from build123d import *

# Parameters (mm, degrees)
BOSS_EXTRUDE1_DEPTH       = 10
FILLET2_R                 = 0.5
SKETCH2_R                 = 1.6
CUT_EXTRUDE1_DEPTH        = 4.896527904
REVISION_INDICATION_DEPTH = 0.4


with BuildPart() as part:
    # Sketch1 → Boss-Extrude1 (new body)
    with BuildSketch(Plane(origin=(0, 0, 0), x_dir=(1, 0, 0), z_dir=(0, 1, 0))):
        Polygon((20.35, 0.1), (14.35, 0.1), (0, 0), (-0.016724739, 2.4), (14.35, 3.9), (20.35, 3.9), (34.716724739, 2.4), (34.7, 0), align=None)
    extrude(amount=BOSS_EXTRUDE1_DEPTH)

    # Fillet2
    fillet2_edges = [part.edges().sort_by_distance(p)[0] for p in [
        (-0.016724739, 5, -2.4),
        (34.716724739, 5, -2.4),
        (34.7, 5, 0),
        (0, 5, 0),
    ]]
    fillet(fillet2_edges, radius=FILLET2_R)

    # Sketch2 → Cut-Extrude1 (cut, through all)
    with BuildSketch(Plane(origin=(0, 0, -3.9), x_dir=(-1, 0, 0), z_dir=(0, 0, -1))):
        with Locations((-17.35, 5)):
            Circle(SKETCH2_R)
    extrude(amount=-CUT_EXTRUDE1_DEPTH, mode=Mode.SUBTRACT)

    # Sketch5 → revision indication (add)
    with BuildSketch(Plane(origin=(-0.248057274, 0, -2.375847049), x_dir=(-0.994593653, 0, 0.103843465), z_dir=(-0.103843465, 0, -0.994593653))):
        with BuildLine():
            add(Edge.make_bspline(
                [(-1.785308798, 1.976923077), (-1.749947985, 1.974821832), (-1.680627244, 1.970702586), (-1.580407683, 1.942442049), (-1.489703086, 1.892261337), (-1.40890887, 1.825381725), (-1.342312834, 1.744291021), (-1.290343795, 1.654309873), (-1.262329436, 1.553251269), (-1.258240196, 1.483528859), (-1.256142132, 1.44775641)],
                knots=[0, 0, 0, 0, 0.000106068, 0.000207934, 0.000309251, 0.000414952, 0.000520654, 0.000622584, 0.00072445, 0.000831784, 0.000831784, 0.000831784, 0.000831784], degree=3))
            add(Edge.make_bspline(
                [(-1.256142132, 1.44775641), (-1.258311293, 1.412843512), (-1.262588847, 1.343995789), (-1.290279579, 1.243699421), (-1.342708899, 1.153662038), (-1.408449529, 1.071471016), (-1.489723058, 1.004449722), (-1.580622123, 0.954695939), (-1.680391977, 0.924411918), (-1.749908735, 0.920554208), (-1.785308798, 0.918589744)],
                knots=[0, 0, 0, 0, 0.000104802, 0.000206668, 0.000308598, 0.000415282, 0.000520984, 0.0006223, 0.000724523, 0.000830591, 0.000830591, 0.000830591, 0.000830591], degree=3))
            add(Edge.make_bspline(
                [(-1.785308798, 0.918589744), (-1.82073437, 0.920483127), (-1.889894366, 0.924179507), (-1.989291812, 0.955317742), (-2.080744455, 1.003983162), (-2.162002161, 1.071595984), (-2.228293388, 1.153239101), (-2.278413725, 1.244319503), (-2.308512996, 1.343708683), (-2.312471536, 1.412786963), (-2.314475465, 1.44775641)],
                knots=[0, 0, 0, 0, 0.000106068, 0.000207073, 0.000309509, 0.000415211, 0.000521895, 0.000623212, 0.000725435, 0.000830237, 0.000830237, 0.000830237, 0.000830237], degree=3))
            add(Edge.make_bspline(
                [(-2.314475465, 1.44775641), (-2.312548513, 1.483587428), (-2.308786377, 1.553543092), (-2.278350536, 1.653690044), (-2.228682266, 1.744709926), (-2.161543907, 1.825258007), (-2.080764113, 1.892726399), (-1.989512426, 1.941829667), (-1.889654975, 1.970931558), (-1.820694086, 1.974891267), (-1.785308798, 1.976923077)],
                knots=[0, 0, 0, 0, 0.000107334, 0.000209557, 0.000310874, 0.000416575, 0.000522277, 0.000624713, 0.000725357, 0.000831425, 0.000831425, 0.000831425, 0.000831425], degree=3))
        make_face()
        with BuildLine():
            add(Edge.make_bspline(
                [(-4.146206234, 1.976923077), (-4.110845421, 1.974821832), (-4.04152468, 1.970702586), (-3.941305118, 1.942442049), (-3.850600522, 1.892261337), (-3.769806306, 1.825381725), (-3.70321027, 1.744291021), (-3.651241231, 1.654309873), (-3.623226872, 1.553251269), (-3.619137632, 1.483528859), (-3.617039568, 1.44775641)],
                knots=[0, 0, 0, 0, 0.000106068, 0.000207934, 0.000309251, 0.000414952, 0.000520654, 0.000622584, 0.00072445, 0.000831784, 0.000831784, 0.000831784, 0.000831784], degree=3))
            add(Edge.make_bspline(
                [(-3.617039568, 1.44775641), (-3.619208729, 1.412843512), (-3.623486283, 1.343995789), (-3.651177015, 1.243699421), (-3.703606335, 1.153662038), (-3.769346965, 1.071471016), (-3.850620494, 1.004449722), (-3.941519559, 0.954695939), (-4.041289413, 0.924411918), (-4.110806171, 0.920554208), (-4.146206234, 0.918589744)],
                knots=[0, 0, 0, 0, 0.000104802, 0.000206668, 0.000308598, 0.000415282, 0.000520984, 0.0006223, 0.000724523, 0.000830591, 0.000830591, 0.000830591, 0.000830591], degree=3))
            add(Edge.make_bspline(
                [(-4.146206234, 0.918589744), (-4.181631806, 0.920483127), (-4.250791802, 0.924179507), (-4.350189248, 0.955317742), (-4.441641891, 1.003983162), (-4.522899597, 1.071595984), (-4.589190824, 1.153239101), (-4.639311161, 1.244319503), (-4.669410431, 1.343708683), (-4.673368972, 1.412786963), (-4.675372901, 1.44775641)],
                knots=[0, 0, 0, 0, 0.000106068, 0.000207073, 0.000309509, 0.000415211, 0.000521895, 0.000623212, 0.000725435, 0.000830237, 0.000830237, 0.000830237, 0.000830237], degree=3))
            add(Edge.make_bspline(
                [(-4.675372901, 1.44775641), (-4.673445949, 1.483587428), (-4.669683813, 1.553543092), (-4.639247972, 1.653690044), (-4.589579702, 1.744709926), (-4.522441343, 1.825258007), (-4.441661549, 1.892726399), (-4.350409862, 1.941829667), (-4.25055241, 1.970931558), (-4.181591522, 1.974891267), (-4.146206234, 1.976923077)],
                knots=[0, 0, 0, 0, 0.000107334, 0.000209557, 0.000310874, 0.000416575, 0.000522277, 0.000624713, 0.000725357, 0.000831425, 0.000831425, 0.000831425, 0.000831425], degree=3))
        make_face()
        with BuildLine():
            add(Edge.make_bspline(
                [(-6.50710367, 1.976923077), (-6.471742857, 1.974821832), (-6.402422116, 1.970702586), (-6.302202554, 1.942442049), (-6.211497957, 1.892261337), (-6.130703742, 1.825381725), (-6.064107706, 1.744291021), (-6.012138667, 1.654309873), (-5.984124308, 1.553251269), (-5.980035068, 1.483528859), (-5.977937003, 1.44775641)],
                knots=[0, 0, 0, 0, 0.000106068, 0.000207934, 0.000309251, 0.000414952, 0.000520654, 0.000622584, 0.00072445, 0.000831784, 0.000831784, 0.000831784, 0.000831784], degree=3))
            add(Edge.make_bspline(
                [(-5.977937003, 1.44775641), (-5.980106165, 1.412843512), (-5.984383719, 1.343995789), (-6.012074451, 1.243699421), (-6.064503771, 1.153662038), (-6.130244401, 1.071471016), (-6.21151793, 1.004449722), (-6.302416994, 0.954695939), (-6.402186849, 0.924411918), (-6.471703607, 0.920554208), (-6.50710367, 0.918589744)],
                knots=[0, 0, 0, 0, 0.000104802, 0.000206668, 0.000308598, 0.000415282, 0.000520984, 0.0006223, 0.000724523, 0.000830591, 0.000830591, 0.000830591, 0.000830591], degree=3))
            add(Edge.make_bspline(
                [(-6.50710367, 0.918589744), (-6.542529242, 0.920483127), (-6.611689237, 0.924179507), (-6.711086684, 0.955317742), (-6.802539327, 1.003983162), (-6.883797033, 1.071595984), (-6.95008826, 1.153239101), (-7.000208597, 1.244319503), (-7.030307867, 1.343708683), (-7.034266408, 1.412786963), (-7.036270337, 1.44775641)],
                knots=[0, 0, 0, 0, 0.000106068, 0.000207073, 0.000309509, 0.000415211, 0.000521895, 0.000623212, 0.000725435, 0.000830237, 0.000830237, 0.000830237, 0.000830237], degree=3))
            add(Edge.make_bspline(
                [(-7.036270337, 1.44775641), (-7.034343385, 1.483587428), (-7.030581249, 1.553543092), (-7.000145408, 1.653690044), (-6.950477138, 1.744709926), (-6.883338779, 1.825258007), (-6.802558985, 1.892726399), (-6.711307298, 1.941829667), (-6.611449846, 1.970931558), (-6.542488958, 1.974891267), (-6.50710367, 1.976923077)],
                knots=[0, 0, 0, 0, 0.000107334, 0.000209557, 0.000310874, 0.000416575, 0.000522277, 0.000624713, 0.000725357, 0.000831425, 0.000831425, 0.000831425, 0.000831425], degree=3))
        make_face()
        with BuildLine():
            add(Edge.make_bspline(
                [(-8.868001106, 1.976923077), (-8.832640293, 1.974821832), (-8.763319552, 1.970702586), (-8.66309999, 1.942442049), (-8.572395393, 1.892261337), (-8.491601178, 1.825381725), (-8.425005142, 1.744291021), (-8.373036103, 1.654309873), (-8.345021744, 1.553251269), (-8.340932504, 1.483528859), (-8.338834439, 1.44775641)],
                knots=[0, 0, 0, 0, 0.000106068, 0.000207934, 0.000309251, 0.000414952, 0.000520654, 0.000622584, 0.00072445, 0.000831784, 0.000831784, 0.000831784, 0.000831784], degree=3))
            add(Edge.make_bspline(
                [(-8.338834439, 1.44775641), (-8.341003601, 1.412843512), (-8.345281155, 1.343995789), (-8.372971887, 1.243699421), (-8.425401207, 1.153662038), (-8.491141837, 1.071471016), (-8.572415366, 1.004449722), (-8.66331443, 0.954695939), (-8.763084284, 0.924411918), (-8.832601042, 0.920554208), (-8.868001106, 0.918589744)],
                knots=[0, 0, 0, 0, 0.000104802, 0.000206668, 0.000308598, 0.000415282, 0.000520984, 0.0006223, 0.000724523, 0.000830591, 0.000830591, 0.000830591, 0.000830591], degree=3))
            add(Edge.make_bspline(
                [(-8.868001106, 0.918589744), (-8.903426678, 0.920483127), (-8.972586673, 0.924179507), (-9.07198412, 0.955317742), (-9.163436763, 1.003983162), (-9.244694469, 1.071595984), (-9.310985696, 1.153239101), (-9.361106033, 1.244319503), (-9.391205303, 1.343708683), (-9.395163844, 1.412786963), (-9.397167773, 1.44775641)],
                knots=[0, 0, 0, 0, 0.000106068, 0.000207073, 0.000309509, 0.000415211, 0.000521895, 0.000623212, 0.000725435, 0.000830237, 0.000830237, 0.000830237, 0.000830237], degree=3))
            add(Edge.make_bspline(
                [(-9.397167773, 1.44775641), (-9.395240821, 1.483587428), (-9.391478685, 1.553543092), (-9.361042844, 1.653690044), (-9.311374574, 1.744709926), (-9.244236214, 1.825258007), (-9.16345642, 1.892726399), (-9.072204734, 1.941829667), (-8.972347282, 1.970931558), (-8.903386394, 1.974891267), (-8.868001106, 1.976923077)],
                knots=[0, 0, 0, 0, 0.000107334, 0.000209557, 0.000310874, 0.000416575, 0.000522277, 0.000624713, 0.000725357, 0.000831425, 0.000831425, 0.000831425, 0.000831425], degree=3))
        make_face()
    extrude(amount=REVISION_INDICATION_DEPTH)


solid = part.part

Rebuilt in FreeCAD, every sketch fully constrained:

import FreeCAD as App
import Part
import Sketcher
from FreeCAD import Vector
Q = App.Units.Quantity


def edges_at(feature, points):
    """Names of the edges that pass closest to the given points."""
    edges = feature.Shape.Edges
    near = lambda p: min(range(len(edges)), key=lambda i: edges[i].distToShape(Part.Vertex(*p))[0])
    return sorted({f"Edge{near(p) + 1}" for p in points})


def add_polygon(sketch, points):
    """Adds a closed chain of lines whose ends are joined by coincident constraints."""
    first, n = sketch.GeometryCount, len(points)
    for a, b in zip(points, points[1:] + points[:1]):
        sketch.addGeometry(Part.LineSegment(App.Vector(*a, 0), App.Vector(*b, 0)), False)
    for i in range(n):
        sketch.addConstraint(Sketcher.Constraint("Coincident", first + i, 2, first + (i + 1) % n, 1))

doc = App.newDocument("Part")
body = doc.addObject("PartDesign::Body", "Body")

# Sketch on XZ plane
sketch1 = doc.addObject("Sketcher::SketchObject", "Sketch")
body.addObject(sketch1)
sketch1.AttachmentSupport = (doc.XZ_Plane, [""])
sketch1.MapMode = "FlatFace"
add_polygon(sketch1, [(14.3, -0.1), (20.4, -0.1), (34.7, 0), (34.7, -2.4), (20.4, -3.9), (14.3, -3.9), (0, -2.4), (0, 0)])  # lines 0-7
sketch1.addConstraint([
    Sketcher.Constraint("Horizontal", 0),
    Sketcher.Constraint("Horizontal", 4),
    Sketcher.Constraint("Coincident", 6, 2, -1, 1),
    Sketcher.Constraint("PointOnObject", 1, 2, -1),
    Sketcher.Constraint("Perpendicular", 1, 2),
    Sketcher.Constraint("Perpendicular", 6, 7),
    Sketcher.Constraint("Horizontal", 2, 2, 5, 2),
    Sketcher.Constraint("Vertical", 0, 2, 3, 2),
    Sketcher.Constraint("Vertical", 4, 2, 7, 2),
    Sketcher.Constraint("Equal", 3, 5),
    Sketcher.Constraint("DistanceX", 0, 1, 0, 2, Q("6 mm")),
    Sketcher.Constraint("DistanceY", 0, 2, -1, 1, Q("0.1 mm")),
    Sketcher.Constraint("DistanceX", -1, 1, 1, 2, Q("34.7 mm")),
    Sketcher.Constraint("DistanceY", 2, 2, -1, 1, Q("2.4 mm")),
    Sketcher.Constraint("DistanceY", 3, 2, -1, 1, Q("3.9 mm")),
])
pad1 = doc.addObject("PartDesign::Pad", "Pad")
body.addObject(pad1)
pad1.Profile = sketch1
pad1.Length = 10
pad1.Reversed = True
doc.recompute()

fillet = doc.addObject("PartDesign::Fillet", "Fillet")
body.addObject(fillet)
fillet.Base = (pad1, edges_at(pad1, [
    (-0.017, 5, -2.4),
    (34.717, 5, -2.4),
    (34.7, 5, 0),
    (0, 5, 0),
]))
fillet.Radius = 0.5

# Sketch on XY plane
sketch2 = doc.addObject("Sketcher::SketchObject", "Sketch001")
body.addObject(sketch2)
sketch2.AttachmentSupport = (doc.XY_Plane, [""])
sketch2.MapMode = "FlatFace"
sketch2.AttachmentOffset = App.Placement(Vector(0, 0, -3.9), App.Rotation())
sketch2.addGeometry(Part.Circle(Vector(17.4, 5, 0), Vector(0, 0, 1), 1.6), False)
sketch2.addConstraint([
    Sketcher.Constraint("Diameter", 0, Q("3.2 mm")),
    Sketcher.Constraint("DistanceY", -1, 1, 0, 3, Q("5 mm")),
    Sketcher.Constraint("DistanceX", -1, 1, 0, 3, Q("17.35 mm")),
])
pocket1 = doc.addObject("PartDesign::Pocket", "Pocket")
body.addObject(pocket1)
pocket1.Profile = sketch2
pocket1.Type = "ThroughAll"
pocket1.Reversed = True

# Sketch on an angled plane
sketch3 = doc.addObject("Sketcher::SketchObject", "Sketch002")
body.addObject(sketch3)
sketch3.Placement = App.Placement(Vector(-0.248057, 0, -2.375847), App.Rotation(Vector(-0.994593653, 0, 0.103843465), Vector(0, 1, 0), Vector(-0.103843465, 0, -0.994593653), "ZXY"))
sketch3.addGeometry([
    Part.BSplineCurve([Vector(-1.785309, 1.976923, 0), Vector(-1.749948, 1.974822, 0), Vector(-1.680627, 1.970703, 0), Vector(-1.580408, 1.942442, 0), Vector(-1.489703, 1.892261, 0), Vector(-1.408909, 1.825382, 0), Vector(-1.342313, 1.744291, 0), Vector(-1.290344, 1.65431, 0), Vector(-1.262329, 1.553251, 0), Vector(-1.25824, 1.483529, 0), Vector(-1.256142, 1.447756, 0)], [4, 1, 1, 1, 1, 1, 1, 1, 4], [0, 0.000106068, 0.000207934, 0.000309251, 0.000414952, 0.000520654, 0.000622584, 0.00072445, 0.000831784], False, 3, [1, 1, 1, 1, 1, 1, 1, 1, 1, 1, 1], False),  # 0
    Part.BSplineCurve([Vector(-2.314475, 1.447756, 0), Vector(-2.312549, 1.483587, 0), Vector(-2.308786, 1.553543, 0), Vector(-2.278351, 1.65369, 0), Vector(-2.228682, 1.74471, 0), Vector(-2.161544, 1.825258, 0), Vector(-2.080764, 1.892726, 0), Vector(-1.989512, 1.94183, 0), Vector(-1.889655, 1.970932, 0), Vector(-1.820694, 1.974891, 0), Vector(-1.785309, 1.976923, 0)], [4, 1, 1, 1, 1, 1, 1, 1, 4], [0, 0.000107334, 0.000209557, 0.000310874, 0.000416575, 0.000522277, 0.000624713, 0.000725357, 0.000831425], False, 3, [1, 1, 1, 1, 1, 1, 1, 1, 1, 1, 1], False),  # 1
    Part.BSplineCurve([Vector(-1.785309, 0.91859, 0), Vector(-1.820734, 0.920483, 0), Vector(-1.889894, 0.92418, 0), Vector(-1.989292, 0.955318, 0), Vector(-2.080744, 1.003983, 0), Vector(-2.162002, 1.071596, 0), Vector(-2.228293, 1.153239, 0), Vector(-2.278414, 1.24432, 0), Vector(-2.308513, 1.343709, 0), Vector(-2.312472, 1.412787, 0), Vector(-2.314475, 1.447756, 0)], [4, 1, 1, 1, 1, 1, 1, 1, 4], [0, 0.000106068, 0.000207073, 0.000309509, 0.000415211, 0.000521895, 0.000623212, 0.000725435, 0.000830237], False, 3, [1, 1, 1, 1, 1, 1, 1, 1, 1, 1, 1], False),  # 2
    Part.BSplineCurve([Vector(-1.256142, 1.447756, 0), Vector(-1.258311, 1.412844, 0), Vector(-1.262589, 1.343996, 0), Vector(-1.29028, 1.243699, 0), Vector(-1.342709, 1.153662, 0), Vector(-1.40845, 1.071471, 0), Vector(-1.489723, 1.00445, 0), Vector(-1.580622, 0.954696, 0), Vector(-1.680392, 0.924412, 0), Vector(-1.749909, 0.920554, 0), Vector(-1.785309, 0.91859, 0)], [4, 1, 1, 1, 1, 1, 1, 1, 4], [0, 0.000104802, 0.000206668, 0.000308598, 0.000415282, 0.000520984, 0.0006223, 0.000724523, 0.000830591], False, 3, [1, 1, 1, 1, 1, 1, 1, 1, 1, 1, 1], False),  # 3
    Part.BSplineCurve([Vector(-4.146206, 1.976923, 0), Vector(-4.110845, 1.974822, 0), Vector(-4.041525, 1.970703, 0), Vector(-3.941305, 1.942442, 0), Vector(-3.850601, 1.892261, 0), Vector(-3.769806, 1.825382, 0), Vector(-3.70321, 1.744291, 0), Vector(-3.651241, 1.65431, 0), Vector(-3.623227, 1.553251, 0), Vector(-3.619138, 1.483529, 0), Vector(-3.61704, 1.447756, 0)], [4, 1, 1, 1, 1, 1, 1, 1, 4], [0, 0.000106068, 0.000207934, 0.000309251, 0.000414952, 0.000520654, 0.000622584, 0.00072445, 0.000831784], False, 3, [1, 1, 1, 1, 1, 1, 1, 1, 1, 1, 1], False),  # 4
    Part.BSplineCurve([Vector(-4.675373, 1.447756, 0), Vector(-4.673446, 1.483587, 0), Vector(-4.669684, 1.553543, 0), Vector(-4.639248, 1.65369, 0), Vector(-4.58958, 1.74471, 0), Vector(-4.522441, 1.825258, 0), Vector(-4.441662, 1.892726, 0), Vector(-4.35041, 1.94183, 0), Vector(-4.250552, 1.970932, 0), Vector(-4.181592, 1.974891, 0), Vector(-4.146206, 1.976923, 0)], [4, 1, 1, 1, 1, 1, 1, 1, 4], [0, 0.000107334, 0.000209557, 0.000310874, 0.000416575, 0.000522277, 0.000624713, 0.000725357, 0.000831425], False, 3, [1, 1, 1, 1, 1, 1, 1, 1, 1, 1, 1], False),  # 5
    Part.BSplineCurve([Vector(-4.146206, 0.91859, 0), Vector(-4.181632, 0.920483, 0), Vector(-4.250792, 0.92418, 0), Vector(-4.350189, 0.955318, 0), Vector(-4.441642, 1.003983, 0), Vector(-4.5229, 1.071596, 0), Vector(-4.589191, 1.153239, 0), Vector(-4.639311, 1.24432, 0), Vector(-4.66941, 1.343709, 0), Vector(-4.673369, 1.412787, 0), Vector(-4.675373, 1.447756, 0)], [4, 1, 1, 1, 1, 1, 1, 1, 4], [0, 0.000106068, 0.000207073, 0.000309509, 0.000415211, 0.000521895, 0.000623212, 0.000725435, 0.000830237], False, 3, [1, 1, 1, 1, 1, 1, 1, 1, 1, 1, 1], False),  # 6
    Part.BSplineCurve([Vector(-3.61704, 1.447756, 0), Vector(-3.619209, 1.412844, 0), Vector(-3.623486, 1.343996, 0), Vector(-3.651177, 1.243699, 0), Vector(-3.703606, 1.153662, 0), Vector(-3.769347, 1.071471, 0), Vector(-3.85062, 1.00445, 0), Vector(-3.94152, 0.954696, 0), Vector(-4.041289, 0.924412, 0), Vector(-4.110806, 0.920554, 0), Vector(-4.146206, 0.91859, 0)], [4, 1, 1, 1, 1, 1, 1, 1, 4], [0, 0.000104802, 0.000206668, 0.000308598, 0.000415282, 0.000520984, 0.0006223, 0.000724523, 0.000830591], False, 3, [1, 1, 1, 1, 1, 1, 1, 1, 1, 1, 1], False),  # 7
    Part.BSplineCurve([Vector(-6.507104, 1.976923, 0), Vector(-6.471743, 1.974822, 0), Vector(-6.402422, 1.970703, 0), Vector(-6.302203, 1.942442, 0), Vector(-6.211498, 1.892261, 0), Vector(-6.130704, 1.825382, 0), Vector(-6.064108, 1.744291, 0), Vector(-6.012139, 1.65431, 0), Vector(-5.984124, 1.553251, 0), Vector(-5.980035, 1.483529, 0), Vector(-5.977937, 1.447756, 0)], [4, 1, 1, 1, 1, 1, 1, 1, 4], [0, 0.000106068, 0.000207934, 0.000309251, 0.000414952, 0.000520654, 0.000622584, 0.00072445, 0.000831784], False, 3, [1, 1, 1, 1, 1, 1, 1, 1, 1, 1, 1], False),  # 8
    Part.BSplineCurve([Vector(-7.03627, 1.447756, 0), Vector(-7.034343, 1.483587, 0), Vector(-7.030581, 1.553543, 0), Vector(-7.000145, 1.65369, 0), Vector(-6.950477, 1.74471, 0), Vector(-6.883339, 1.825258, 0), Vector(-6.802559, 1.892726, 0), Vector(-6.711307, 1.94183, 0), Vector(-6.61145, 1.970932, 0), Vector(-6.542489, 1.974891, 0), Vector(-6.507104, 1.976923, 0)], [4, 1, 1, 1, 1, 1, 1, 1, 4], [0, 0.000107334, 0.000209557, 0.000310874, 0.000416575, 0.000522277, 0.000624713, 0.000725357, 0.000831425], False, 3, [1, 1, 1, 1, 1, 1, 1, 1, 1, 1, 1], False),  # 9
    Part.BSplineCurve([Vector(-6.507104, 0.91859, 0), Vector(-6.542529, 0.920483, 0), Vector(-6.611689, 0.92418, 0), Vector(-6.711087, 0.955318, 0), Vector(-6.802539, 1.003983, 0), Vector(-6.883797, 1.071596, 0), Vector(-6.950088, 1.153239, 0), Vector(-7.000209, 1.24432, 0), Vector(-7.030308, 1.343709, 0), Vector(-7.034266, 1.412787, 0), Vector(-7.03627, 1.447756, 0)], [4, 1, 1, 1, 1, 1, 1, 1, 4], [0, 0.000106068, 0.000207073, 0.000309509, 0.000415211, 0.000521895, 0.000623212, 0.000725435, 0.000830237], False, 3, [1, 1, 1, 1, 1, 1, 1, 1, 1, 1, 1], False),  # 10
    Part.BSplineCurve([Vector(-5.977937, 1.447756, 0), Vector(-5.980106, 1.412844, 0), Vector(-5.984384, 1.343996, 0), Vector(-6.012074, 1.243699, 0), Vector(-6.064504, 1.153662, 0), Vector(-6.130244, 1.071471, 0), Vector(-6.211518, 1.00445, 0), Vector(-6.302417, 0.954696, 0), Vector(-6.402187, 0.924412, 0), Vector(-6.471704, 0.920554, 0), Vector(-6.507104, 0.91859, 0)], [4, 1, 1, 1, 1, 1, 1, 1, 4], [0, 0.000104802, 0.000206668, 0.000308598, 0.000415282, 0.000520984, 0.0006223, 0.000724523, 0.000830591], False, 3, [1, 1, 1, 1, 1, 1, 1, 1, 1, 1, 1], False),  # 11
    Part.BSplineCurve([Vector(-8.868001, 1.976923, 0), Vector(-8.83264, 1.974822, 0), Vector(-8.76332, 1.970703, 0), Vector(-8.6631, 1.942442, 0), Vector(-8.572395, 1.892261, 0), Vector(-8.491601, 1.825382, 0), Vector(-8.425005, 1.744291, 0), Vector(-8.373036, 1.65431, 0), Vector(-8.345022, 1.553251, 0), Vector(-8.340933, 1.483529, 0), Vector(-8.338834, 1.447756, 0)], [4, 1, 1, 1, 1, 1, 1, 1, 4], [0, 0.000106068, 0.000207934, 0.000309251, 0.000414952, 0.000520654, 0.000622584, 0.00072445, 0.000831784], False, 3, [1, 1, 1, 1, 1, 1, 1, 1, 1, 1, 1], False),  # 12
    Part.BSplineCurve([Vector(-9.397168, 1.447756, 0), Vector(-9.395241, 1.483587, 0), Vector(-9.391479, 1.553543, 0), Vector(-9.361043, 1.65369, 0), Vector(-9.311375, 1.74471, 0), Vector(-9.244236, 1.825258, 0), Vector(-9.163456, 1.892726, 0), Vector(-9.072205, 1.94183, 0), Vector(-8.972347, 1.970932, 0), Vector(-8.903386, 1.974891, 0), Vector(-8.868001, 1.976923, 0)], [4, 1, 1, 1, 1, 1, 1, 1, 4], [0, 0.000107334, 0.000209557, 0.000310874, 0.000416575, 0.000522277, 0.000624713, 0.000725357, 0.000831425], False, 3, [1, 1, 1, 1, 1, 1, 1, 1, 1, 1, 1], False),  # 13
    Part.BSplineCurve([Vector(-8.868001, 0.91859, 0), Vector(-8.903427, 0.920483, 0), Vector(-8.972587, 0.92418, 0), Vector(-9.071984, 0.955318, 0), Vector(-9.163437, 1.003983, 0), Vector(-9.244694, 1.071596, 0), Vector(-9.310986, 1.153239, 0), Vector(-9.361106, 1.24432, 0), Vector(-9.391205, 1.343709, 0), Vector(-9.395164, 1.412787, 0), Vector(-9.397168, 1.447756, 0)], [4, 1, 1, 1, 1, 1, 1, 1, 4], [0, 0.000106068, 0.000207073, 0.000309509, 0.000415211, 0.000521895, 0.000623212, 0.000725435, 0.000830237], False, 3, [1, 1, 1, 1, 1, 1, 1, 1, 1, 1, 1], False),  # 14
    Part.BSplineCurve([Vector(-8.338834, 1.447756, 0), Vector(-8.341004, 1.412844, 0), Vector(-8.345281, 1.343996, 0), Vector(-8.372972, 1.243699, 0), Vector(-8.425401, 1.153662, 0), Vector(-8.491142, 1.071471, 0), Vector(-8.572415, 1.00445, 0), Vector(-8.663314, 0.954696, 0), Vector(-8.763084, 0.924412, 0), Vector(-8.832601, 0.920554, 0), Vector(-8.868001, 0.91859, 0)], [4, 1, 1, 1, 1, 1, 1, 1, 4], [0, 0.000104802, 0.000206668, 0.000308598, 0.000415282, 0.000520984, 0.0006223, 0.000724523, 0.000830591], False, 3, [1, 1, 1, 1, 1, 1, 1, 1, 1, 1, 1], False),  # 15
], False)
sketch3.addConstraint([
    Sketcher.Constraint("Block", 0),
    Sketcher.Constraint("Block", 1),
    Sketcher.Constraint("Block", 2),
    Sketcher.Constraint("Block", 3),
    Sketcher.Constraint("Block", 4),
    Sketcher.Constraint("Block", 5),
    Sketcher.Constraint("Block", 6),
    Sketcher.Constraint("Block", 7),
    Sketcher.Constraint("Block", 8),
    Sketcher.Constraint("Block", 9),
    Sketcher.Constraint("Block", 10),
    Sketcher.Constraint("Block", 11),
    Sketcher.Constraint("Block", 12),
    Sketcher.Constraint("Block", 13),
    Sketcher.Constraint("Block", 14),
    Sketcher.Constraint("Block", 15),
])
pad2 = doc.addObject("PartDesign::Pad", "Pad001")
body.addObject(pad2)
pad2.Profile = sketch3
pad2.Length = 0.4

doc.recompute()
